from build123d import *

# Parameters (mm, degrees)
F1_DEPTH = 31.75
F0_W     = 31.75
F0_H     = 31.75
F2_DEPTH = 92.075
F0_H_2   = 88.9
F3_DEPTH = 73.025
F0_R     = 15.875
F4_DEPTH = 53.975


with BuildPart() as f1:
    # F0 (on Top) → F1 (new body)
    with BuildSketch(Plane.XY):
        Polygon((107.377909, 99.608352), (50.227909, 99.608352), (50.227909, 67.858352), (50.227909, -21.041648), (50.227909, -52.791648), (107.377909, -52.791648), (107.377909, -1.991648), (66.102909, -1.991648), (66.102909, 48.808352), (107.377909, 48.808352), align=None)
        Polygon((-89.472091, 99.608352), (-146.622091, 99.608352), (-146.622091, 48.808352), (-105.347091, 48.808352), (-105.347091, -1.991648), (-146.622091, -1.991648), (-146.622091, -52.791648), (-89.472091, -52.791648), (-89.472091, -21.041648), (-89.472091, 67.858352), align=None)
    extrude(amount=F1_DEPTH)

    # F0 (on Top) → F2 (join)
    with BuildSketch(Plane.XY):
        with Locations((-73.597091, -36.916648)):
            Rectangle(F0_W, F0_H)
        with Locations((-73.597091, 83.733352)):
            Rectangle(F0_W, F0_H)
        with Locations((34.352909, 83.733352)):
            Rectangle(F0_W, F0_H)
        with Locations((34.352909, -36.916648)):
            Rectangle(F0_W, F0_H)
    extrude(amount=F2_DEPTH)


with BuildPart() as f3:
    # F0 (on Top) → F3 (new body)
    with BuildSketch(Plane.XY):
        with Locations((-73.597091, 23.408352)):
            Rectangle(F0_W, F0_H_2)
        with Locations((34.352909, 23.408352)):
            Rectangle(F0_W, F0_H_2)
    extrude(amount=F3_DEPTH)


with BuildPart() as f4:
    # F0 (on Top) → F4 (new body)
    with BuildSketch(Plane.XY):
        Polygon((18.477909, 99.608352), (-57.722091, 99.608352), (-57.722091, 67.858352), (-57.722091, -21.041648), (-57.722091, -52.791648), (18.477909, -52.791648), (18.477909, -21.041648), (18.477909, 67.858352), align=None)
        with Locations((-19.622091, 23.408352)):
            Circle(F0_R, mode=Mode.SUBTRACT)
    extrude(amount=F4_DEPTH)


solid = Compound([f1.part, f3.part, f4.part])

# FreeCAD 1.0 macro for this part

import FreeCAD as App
import Part
import Sketcher
Q = App.Units.Quantity

doc = App.newDocument("Part")
params = doc.addObject("Spreadsheet::Sheet", "Params")
for row, (alias, value) in enumerate([
    ("sketch1_height", "6 in"),
    ("sketch1_width", "2.25 in"),
    ("sketch1_width2", "1.625 in"),
    ("pad1_length", "1.25 in"),
    ("sketch2_width", "1.25 in"),
    ("pad2_length", "3.625 in"),
    ("sketch3_height", "3.5 in"),
    ("sketch3_width", "1.25 in"),
    ("pad3_length", "2.875 in"),
    ("sketch4_diameter", "1.25 in"),
    ("sketch4_width", "3 in"),
    ("sketch4_height", "6 in"),
    ("pad4_length", "2.125 in"),
], start=1):
    params.set(f"A{row}", alias)
    params.set(f"B{row}", "=" + value)
    params.setAlias(f"B{row}", alias)

body = doc.addObject("PartDesign::Body", "Body")
body.AllowCompound = True

# Sketch on XY plane
sketch1 = body.newObject("Sketcher::SketchObject", "Sketch")
sketch1.AttachmentSupport = (doc.getObject("XY_Plane"), [""])
sketch1.MapMode = "FlatFace"
sketch1.addGeometry([
    Part.LineSegment(App.Vector(107.377909, 99.608352, 0), App.Vector(50.227909, 99.608352, 0)),  # 0
    Part.LineSegment(App.Vector(50.227909, 99.608352, 0), App.Vector(50.227909, -52.791648, 0)),  # 1
    Part.LineSegment(App.Vector(50.227909, -52.791648, 0), App.Vector(107.377909, -52.791648, 0)),  # 2
    Part.LineSegment(App.Vector(107.377909, -52.791648, 0), App.Vector(107.377909, -1.991648, 0)),  # 3
    Part.LineSegment(App.Vector(107.377909, -1.991648, 0), App.Vector(66.102909, -1.991648, 0)),  # 4
    Part.LineSegment(App.Vector(66.102909, -1.991648, 0), App.Vector(66.102909, 48.808352, 0)),  # 5
    Part.LineSegment(App.Vector(66.102909, 48.808352, 0), App.Vector(107.377909, 48.808352, 0)),  # 6
    Part.LineSegment(App.Vector(107.377909, 48.808352, 0), App.Vector(107.377909, 99.608352, 0)),  # 7
    Part.LineSegment(App.Vector(-89.472091, 99.608352, 0), App.Vector(-146.622091, 99.608352, 0)),  # 8
    Part.LineSegment(App.Vector(-146.622091, 99.608352, 0), App.Vector(-146.622091, 48.808352, 0)),  # 9
    Part.LineSegment(App.Vector(-146.622091, 48.808352, 0), App.Vector(-105.347091, 48.808352, 0)),  # 10
    Part.LineSegment(App.Vector(-105.347091, 48.808352, 0), App.Vector(-105.347091, -1.991648, 0)),  # 11
    Part.LineSegment(App.Vector(-105.347091, -1.991648, 0), App.Vector(-146.622091, -1.991648, 0)),  # 12
    Part.LineSegment(App.Vector(-146.622091, -1.991648, 0), App.Vector(-146.622091, -52.791648, 0)),  # 13
    Part.LineSegment(App.Vector(-146.622091, -52.791648, 0), App.Vector(-89.472091, -52.791648, 0)),  # 14
    Part.LineSegment(App.Vector(-89.472091, -52.791648, 0), App.Vector(-89.472091, 99.608352, 0)),  # 15
], False)
sketch1.addConstraint([
    Sketcher.Constraint("Coincident", 0, 2, 1, 1),
    Sketcher.Constraint("Coincident", 1, 2, 2, 1),
    Sketcher.Constraint("Coincident", 2, 2, 3, 1),
    Sketcher.Constraint("Coincident", 3, 2, 4, 1),
    Sketcher.Constraint("Coincident", 4, 2, 5, 1),
    Sketcher.Constraint("Coincident", 5, 2, 6, 1),
    Sketcher.Constraint("Coincident", 6, 2, 7, 1),
    Sketcher.Constraint("Coincident", 7, 2, 0, 1),
    Sketcher.Constraint("Coincident", 8, 2, 9, 1),
    Sketcher.Constraint("Coincident", 9, 2, 10, 1),
    Sketcher.Constraint("Coincident", 10, 2, 11, 1),
    Sketcher.Constraint("Coincident", 11, 2, 12, 1),
    Sketcher.Constraint("Coincident", 12, 2, 13, 1),
    Sketcher.Constraint("Coincident", 13, 2, 14, 1),
    Sketcher.Constraint("Coincident", 14, 2, 15, 1),
    Sketcher.Constraint("Coincident", 15, 2, 8, 1),
    Sketcher.Constraint("Horizontal", 0),
    Sketcher.Constraint("Vertical", 1),
    Sketcher.Constraint("Horizontal", 2),
    Sketcher.Constraint("Vertical", 3),
    Sketcher.Constraint("Horizontal", 4),
    Sketcher.Constraint("Vertical", 5),
    Sketcher.Constraint("Horizontal", 6),
    Sketcher.Constraint("Vertical", 7),
    Sketcher.Constraint("Horizontal", 8),
    Sketcher.Constraint("Vertical", 9),
    Sketcher.Constraint("Horizontal", 10),
    Sketcher.Constraint("Vertical", 11),
    Sketcher.Constraint("Horizontal", 12),
    Sketcher.Constraint("Vertical", 13),
    Sketcher.Constraint("Horizontal", 14),
    Sketcher.Constraint("Vertical", 15),
    Sketcher.Constraint("Horizontal", 7, 2, 8, 2),
    Sketcher.Constraint("Horizontal", 6, 2, 9, 2),
    Sketcher.Constraint("Horizontal", 4, 2, 11, 2),
    Sketcher.Constraint("Horizontal", 2, 2, 13, 2),
    Sketcher.Constraint("Vertical", 3, 2, 6, 2),
    Sketcher.Constraint("Vertical", 9, 2, 12, 2),
    Sketcher.Constraint("Equal", 2, 8),
    Sketcher.Constraint("Equal", 6, 10),
    Sketcher.Constraint("Equal", 3, 5),
    Sketcher.Constraint("Equal", 5, 7),
    Sketcher.Constraint("DistanceY", 1, 2, 1, 1, Q("6 in")),
    Sketcher.Constraint("DistanceX", 8, 2, 7, 2, Q("10 in")),
    Sketcher.Constraint("DistanceX", 0, 2, 0, 1, Q("2.25 in")),
    Sketcher.Constraint("DistanceX", 4, 2, 4, 1, Q("1.625 in")),
    Sketcher.Constraint("DistanceX", -1, 1, 0, 2, 50.227909),
    Sketcher.Constraint("DistanceY", -1, 1, 0, 2, 99.608352),
])
sketch1.setExpression("Constraints[42]", "Params.sketch1_height")
sketch1.setExpression("Constraints[44]", "Params.sketch1_width")
sketch1.setExpression("Constraints[45]", "Params.sketch1_width2")
pad1 = body.newObject("PartDesign::Pad", "Pad")
pad1.Profile = sketch1
pad1.setExpression("Length", "Params.pad1_length")

# Sketch on XY plane
sketch2 = body.newObject("Sketcher::SketchObject", "Sketch001")
sketch2.AttachmentSupport = (doc.getObject("XY_Plane"), [""])
sketch2.MapMode = "FlatFace"
sketch2.addGeometry([
    Part.LineSegment(App.Vector(-89.472091, -21.041648, 0), App.Vector(-89.472091, -52.791648, 0)),  # 0
    Part.LineSegment(App.Vector(-89.472091, -52.791648, 0), App.Vector(-57.722091, -52.791648, 0)),  # 1
    Part.LineSegment(App.Vector(-57.722091, -52.791648, 0), App.Vector(-57.722091, -21.041648, 0)),  # 2
    Part.LineSegment(App.Vector(-57.722091, -21.041648, 0), App.Vector(-89.472091, -21.041648, 0)),  # 3
    Part.LineSegment(App.Vector(-89.472091, 99.608352, 0), App.Vector(-89.472091, 67.858352, 0)),  # 4
    Part.LineSegment(App.Vector(-89.472091, 67.858352, 0), App.Vector(-57.722091, 67.858352, 0)),  # 5
    Part.LineSegment(App.Vector(-57.722091, 67.858352, 0), App.Vector(-57.722091, 99.608352, 0)),  # 6
    Part.LineSegment(App.Vector(-57.722091, 99.608352, 0), App.Vector(-89.472091, 99.608352, 0)),  # 7
    Part.LineSegment(App.Vector(18.477909, 99.608352, 0), App.Vector(18.477909, 67.858352, 0)),  # 8
    Part.LineSegment(App.Vector(18.477909, 67.858352, 0), App.Vector(50.227909, 67.858352, 0)),  # 9
    Part.LineSegment(App.Vector(50.227909, 67.858352, 0), App.Vector(50.227909, 99.608352, 0)),  # 10
    Part.LineSegment(App.Vector(50.227909, 99.608352, 0), App.Vector(18.477909, 99.608352, 0)),  # 11
    Part.LineSegment(App.Vector(18.477909, -21.041648, 0), App.Vector(18.477909, -52.791648, 0)),  # 12
    Part.LineSegment(App.Vector(18.477909, -52.791648, 0), App.Vector(50.227909, -52.791648, 0)),  # 13
    Part.LineSegment(App.Vector(50.227909, -52.791648, 0), App.Vector(50.227909, -21.041648, 0)),  # 14
    Part.LineSegment(App.Vector(50.227909, -21.041648, 0), App.Vector(18.477909, -21.041648, 0)),  # 15
], False)
sketch2.addConstraint([
    Sketcher.Constraint("Coincident", 0, 2, 1, 1),
    Sketcher.Constraint("Coincident", 1, 2, 2, 1),
    Sketcher.Constraint("Coincident", 2, 2, 3, 1),
    Sketcher.Constraint("Coincident", 3, 2, 0, 1),
    Sketcher.Constraint("Coincident", 4, 2, 5, 1),
    Sketcher.Constraint("Coincident", 5, 2, 6, 1),
    Sketcher.Constraint("Coincident", 6, 2, 7, 1),
    Sketcher.Constraint("Coincident", 7, 2, 4, 1),
    Sketcher.Constraint("Coincident", 8, 2, 9, 1),
    Sketcher.Constraint("Coincident", 9, 2, 10, 1),
    Sketcher.Constraint("Coincident", 10, 2, 11, 1),
    Sketcher.Constraint("Coincident", 11, 2, 8, 1),
    Sketcher.Constraint("Coincident", 12, 2, 13, 1),
    Sketcher.Constraint("Coincident", 13, 2, 14, 1),
    Sketcher.Constraint("Coincident", 14, 2, 15, 1),
    Sketcher.Constraint("Coincident", 15, 2, 12, 1),
    Sketcher.Constraint("Vertical", 0),
    Sketcher.Constraint("Horizontal", 1),
    Sketcher.Constraint("Vertical", 2),
    Sketcher.Constraint("Horizontal", 3),
    Sketcher.Constraint("Vertical", 4),
    Sketcher.Constraint("Horizontal", 5),
    Sketcher.Constraint("Vertical", 6),
    Sketcher.Constraint("Horizontal", 7),
    Sketcher.Constraint("Vertical", 8),
    Sketcher.Constraint("Horizontal", 9),
    Sketcher.Constraint("Vertical", 10),
    Sketcher.Constraint("Horizontal", 11),
    Sketcher.Constraint("Vertical", 12),
    Sketcher.Constraint("Horizontal", 13),
    Sketcher.Constraint("Vertical", 14),
    Sketcher.Constraint("Horizontal", 15),
    Sketcher.Constraint("Horizontal", 5, 2, 8, 2),
    Sketcher.Constraint("Horizontal", 7, 2, 10, 2),
    Sketcher.Constraint("Horizontal", 1, 2, 12, 2),
    Sketcher.Constraint("Horizontal", 3, 2, 14, 2),
    Sketcher.Constraint("Vertical", 3, 2, 4, 2),
    Sketcher.Constraint("Vertical", 2, 2, 5, 2),
    Sketcher.Constraint("Vertical", 11, 2, 12, 2),
    Sketcher.Constraint("Vertical", 10, 2, 13, 2),
    Sketcher.Constraint("Equal", 7, 9),
    Sketcher.Constraint("Equal", 15, 0),
    Sketcher.Constraint("Equal", 2, 4),
    Sketcher.Constraint("DistanceY", 1, 2, 6, 2, Q("6 in")),
    Sketcher.Constraint("DistanceX", 5, 2, 8, 2, Q("3 in")),
    Sketcher.Constraint("DistanceX", 1, 1, 1, 2, Q("1.25 in")),
    Sketcher.Constraint("DistanceX", 0, 2, -1, 1, 89.472091),
    Sketcher.Constraint("DistanceY", 0, 2, -1, 1, 52.791648),
])
sketch2.setExpression("Constraints[45]", "Params.sketch2_width")
pad2 = body.newObject("PartDesign::Pad", "Pad001")
pad2.Profile = sketch2
pad2.setExpression("Length", "Params.pad2_length")
body2 = doc.addObject("PartDesign::Body", "Body001")
body2.AllowCompound = True

# Sketch on XY plane
sketch3 = body2.newObject("Sketcher::SketchObject", "Sketch002")
sketch3.AttachmentSupport = (doc.getObject("XY_Plane001"), [""])
sketch3.MapMode = "FlatFace"
sketch3.addGeometry([
    Part.LineSegment(App.Vector(-89.472091, 67.858352, 0), App.Vector(-89.472091, -21.041648, 0)),  # 0
    Part.LineSegment(App.Vector(-89.472091, -21.041648, 0), App.Vector(-57.722091, -21.041648, 0)),  # 1
    Part.LineSegment(App.Vector(-57.722091, -21.041648, 0), App.Vector(-57.722091, 67.858352, 0)),  # 2
    Part.LineSegment(App.Vector(-57.722091, 67.858352, 0), App.Vector(-89.472091, 67.858352, 0)),  # 3
    Part.LineSegment(App.Vector(18.477909, 67.858352, 0), App.Vector(18.477909, -21.041648, 0)),  # 4
    Part.LineSegment(App.Vector(18.477909, -21.041648, 0), App.Vector(50.227909, -21.041648, 0)),  # 5
    Part.LineSegment(App.Vector(50.227909, -21.041648, 0), App.Vector(50.227909, 67.858352, 0)),  # 6
    Part.LineSegment(App.Vector(50.227909, 67.858352, 0), App.Vector(18.477909, 67.858352, 0)),  # 7
], False)
sketch3.addConstraint([
    Sketcher.Constraint("Coincident", 0, 2, 1, 1),
    Sketcher.Constraint("Coincident", 1, 2, 2, 1),
    Sketcher.Constraint("Coincident", 2, 2, 3, 1),
    Sketcher.Constraint("Coincident", 3, 2, 0, 1),
    Sketcher.Constraint("Coincident", 4, 2, 5, 1),
    Sketcher.Constraint("Coincident", 5, 2, 6, 1),
    Sketcher.Constraint("Coincident", 6, 2, 7, 1),
    Sketcher.Constraint("Coincident", 7, 2, 4, 1),
    Sketcher.Constraint("Vertical", 0),
    Sketcher.Constraint("Horizontal", 1),
    Sketcher.Constraint("Vertical", 2),
    Sketcher.Constraint("Horizontal", 3),
    Sketcher.Constraint("Vertical", 4),
    Sketcher.Constraint("Horizontal", 5),
    Sketcher.Constraint("Vertical", 6),
    Sketcher.Constraint("Horizontal", 7),
    Sketcher.Constraint("Horizontal", 1, 2, 4, 2),
    Sketcher.Constraint("Horizontal", 3, 2, 6, 2),
    Sketcher.Constraint("Equal", 3, 5),
    Sketcher.Constraint("DistanceY", 0, 2, 0, 1, Q("3.5 in")),
    Sketcher.Constraint("DistanceX", 1, 2, 4, 2, Q("3 in")),
    Sketcher.Constraint("DistanceX", 1, 1, 1, 2, Q("1.25 in")),
    Sketcher.Constraint("DistanceX", 0, 2, -1, 1, 89.472091),
    Sketcher.Constraint("DistanceY", -1, 1, 2, 2, 67.858352),
])
sketch3.setExpression("Constraints[19]", "Params.sketch3_height")
sketch3.setExpression("Constraints[21]", "Params.sketch3_width")
pad3 = body2.newObject("PartDesign::Pad", "Pad002")
pad3.Profile = sketch3
pad3.setExpression("Length", "Params.pad3_length")
body3 = doc.addObject("PartDesign::Body", "Body002")

# Sketch on XY plane
sketch4 = body3.newObject("Sketcher::SketchObject", "Sketch003")
sketch4.AttachmentSupport = (doc.getObject("XY_Plane002"), [""])
sketch4.MapMode = "FlatFace"
sketch4.addGeometry([
    Part.LineSegment(App.Vector(18.477909, 99.608352, 0), App.Vector(-57.722091, 99.608352, 0)),  # 0
    Part.LineSegment(App.Vector(-57.722091, 99.608352, 0), App.Vector(-57.722091, -52.791648, 0)),  # 1
    Part.LineSegment(App.Vector(-57.722091, -52.791648, 0), App.Vector(18.477909, -52.791648, 0)),  # 2
    Part.LineSegment(App.Vector(18.477909, -52.791648, 0), App.Vector(18.477909, 99.608352, 0)),  # 3
    Part.Circle(App.Vector(-19.622091, 23.408352, 0), App.Vector(0, 0, 1), 15.875),  # 4
], False)
sketch4.addConstraint([
    Sketcher.Constraint("Coincident", 0, 2, 1, 1),
    Sketcher.Constraint("Coincident", 1, 2, 2, 1),
    Sketcher.Constraint("Coincident", 2, 2, 3, 1),
    Sketcher.Constraint("Coincident", 3, 2, 0, 1),
    Sketcher.Constraint("Horizontal", 0),
    Sketcher.Constraint("Vertical", 1),
    Sketcher.Constraint("Horizontal", 2),
    Sketcher.Constraint("Vertical", 3),
    Sketcher.Constraint("Diameter", 4, Q("1.25 in")),
    Sketcher.Constraint("DistanceX", 0, 2, 0, 1, Q("3 in")),
    Sketcher.Constraint("DistanceY", 1, 2, 1, 1, Q("6 in")),
    Sketcher.Constraint("DistanceY", 4, 3, 0, 2, Q("3 in")),
    Sketcher.Constraint("DistanceX", 0, 2, 4, 3, Q("1.5 in")),
    Sketcher.Constraint("DistanceX", 4, 3, -1, 1, 19.622091),
    Sketcher.Constraint("DistanceY", -1, 1, 0, 2, 99.608352),
])
sketch4.setExpression("Constraints[8]", "Params.sketch4_diameter")
sketch4.setExpression("Constraints[9]", "Params.sketch4_width")
sketch4.setExpression("Constraints[10]", "Params.sketch4_height")
pad4 = body3.newObject("PartDesign::Pad", "Pad003")
pad4.Profile = sketch4
pad4.setExpression("Length", "Params.pad4_length")

doc.recompute()
